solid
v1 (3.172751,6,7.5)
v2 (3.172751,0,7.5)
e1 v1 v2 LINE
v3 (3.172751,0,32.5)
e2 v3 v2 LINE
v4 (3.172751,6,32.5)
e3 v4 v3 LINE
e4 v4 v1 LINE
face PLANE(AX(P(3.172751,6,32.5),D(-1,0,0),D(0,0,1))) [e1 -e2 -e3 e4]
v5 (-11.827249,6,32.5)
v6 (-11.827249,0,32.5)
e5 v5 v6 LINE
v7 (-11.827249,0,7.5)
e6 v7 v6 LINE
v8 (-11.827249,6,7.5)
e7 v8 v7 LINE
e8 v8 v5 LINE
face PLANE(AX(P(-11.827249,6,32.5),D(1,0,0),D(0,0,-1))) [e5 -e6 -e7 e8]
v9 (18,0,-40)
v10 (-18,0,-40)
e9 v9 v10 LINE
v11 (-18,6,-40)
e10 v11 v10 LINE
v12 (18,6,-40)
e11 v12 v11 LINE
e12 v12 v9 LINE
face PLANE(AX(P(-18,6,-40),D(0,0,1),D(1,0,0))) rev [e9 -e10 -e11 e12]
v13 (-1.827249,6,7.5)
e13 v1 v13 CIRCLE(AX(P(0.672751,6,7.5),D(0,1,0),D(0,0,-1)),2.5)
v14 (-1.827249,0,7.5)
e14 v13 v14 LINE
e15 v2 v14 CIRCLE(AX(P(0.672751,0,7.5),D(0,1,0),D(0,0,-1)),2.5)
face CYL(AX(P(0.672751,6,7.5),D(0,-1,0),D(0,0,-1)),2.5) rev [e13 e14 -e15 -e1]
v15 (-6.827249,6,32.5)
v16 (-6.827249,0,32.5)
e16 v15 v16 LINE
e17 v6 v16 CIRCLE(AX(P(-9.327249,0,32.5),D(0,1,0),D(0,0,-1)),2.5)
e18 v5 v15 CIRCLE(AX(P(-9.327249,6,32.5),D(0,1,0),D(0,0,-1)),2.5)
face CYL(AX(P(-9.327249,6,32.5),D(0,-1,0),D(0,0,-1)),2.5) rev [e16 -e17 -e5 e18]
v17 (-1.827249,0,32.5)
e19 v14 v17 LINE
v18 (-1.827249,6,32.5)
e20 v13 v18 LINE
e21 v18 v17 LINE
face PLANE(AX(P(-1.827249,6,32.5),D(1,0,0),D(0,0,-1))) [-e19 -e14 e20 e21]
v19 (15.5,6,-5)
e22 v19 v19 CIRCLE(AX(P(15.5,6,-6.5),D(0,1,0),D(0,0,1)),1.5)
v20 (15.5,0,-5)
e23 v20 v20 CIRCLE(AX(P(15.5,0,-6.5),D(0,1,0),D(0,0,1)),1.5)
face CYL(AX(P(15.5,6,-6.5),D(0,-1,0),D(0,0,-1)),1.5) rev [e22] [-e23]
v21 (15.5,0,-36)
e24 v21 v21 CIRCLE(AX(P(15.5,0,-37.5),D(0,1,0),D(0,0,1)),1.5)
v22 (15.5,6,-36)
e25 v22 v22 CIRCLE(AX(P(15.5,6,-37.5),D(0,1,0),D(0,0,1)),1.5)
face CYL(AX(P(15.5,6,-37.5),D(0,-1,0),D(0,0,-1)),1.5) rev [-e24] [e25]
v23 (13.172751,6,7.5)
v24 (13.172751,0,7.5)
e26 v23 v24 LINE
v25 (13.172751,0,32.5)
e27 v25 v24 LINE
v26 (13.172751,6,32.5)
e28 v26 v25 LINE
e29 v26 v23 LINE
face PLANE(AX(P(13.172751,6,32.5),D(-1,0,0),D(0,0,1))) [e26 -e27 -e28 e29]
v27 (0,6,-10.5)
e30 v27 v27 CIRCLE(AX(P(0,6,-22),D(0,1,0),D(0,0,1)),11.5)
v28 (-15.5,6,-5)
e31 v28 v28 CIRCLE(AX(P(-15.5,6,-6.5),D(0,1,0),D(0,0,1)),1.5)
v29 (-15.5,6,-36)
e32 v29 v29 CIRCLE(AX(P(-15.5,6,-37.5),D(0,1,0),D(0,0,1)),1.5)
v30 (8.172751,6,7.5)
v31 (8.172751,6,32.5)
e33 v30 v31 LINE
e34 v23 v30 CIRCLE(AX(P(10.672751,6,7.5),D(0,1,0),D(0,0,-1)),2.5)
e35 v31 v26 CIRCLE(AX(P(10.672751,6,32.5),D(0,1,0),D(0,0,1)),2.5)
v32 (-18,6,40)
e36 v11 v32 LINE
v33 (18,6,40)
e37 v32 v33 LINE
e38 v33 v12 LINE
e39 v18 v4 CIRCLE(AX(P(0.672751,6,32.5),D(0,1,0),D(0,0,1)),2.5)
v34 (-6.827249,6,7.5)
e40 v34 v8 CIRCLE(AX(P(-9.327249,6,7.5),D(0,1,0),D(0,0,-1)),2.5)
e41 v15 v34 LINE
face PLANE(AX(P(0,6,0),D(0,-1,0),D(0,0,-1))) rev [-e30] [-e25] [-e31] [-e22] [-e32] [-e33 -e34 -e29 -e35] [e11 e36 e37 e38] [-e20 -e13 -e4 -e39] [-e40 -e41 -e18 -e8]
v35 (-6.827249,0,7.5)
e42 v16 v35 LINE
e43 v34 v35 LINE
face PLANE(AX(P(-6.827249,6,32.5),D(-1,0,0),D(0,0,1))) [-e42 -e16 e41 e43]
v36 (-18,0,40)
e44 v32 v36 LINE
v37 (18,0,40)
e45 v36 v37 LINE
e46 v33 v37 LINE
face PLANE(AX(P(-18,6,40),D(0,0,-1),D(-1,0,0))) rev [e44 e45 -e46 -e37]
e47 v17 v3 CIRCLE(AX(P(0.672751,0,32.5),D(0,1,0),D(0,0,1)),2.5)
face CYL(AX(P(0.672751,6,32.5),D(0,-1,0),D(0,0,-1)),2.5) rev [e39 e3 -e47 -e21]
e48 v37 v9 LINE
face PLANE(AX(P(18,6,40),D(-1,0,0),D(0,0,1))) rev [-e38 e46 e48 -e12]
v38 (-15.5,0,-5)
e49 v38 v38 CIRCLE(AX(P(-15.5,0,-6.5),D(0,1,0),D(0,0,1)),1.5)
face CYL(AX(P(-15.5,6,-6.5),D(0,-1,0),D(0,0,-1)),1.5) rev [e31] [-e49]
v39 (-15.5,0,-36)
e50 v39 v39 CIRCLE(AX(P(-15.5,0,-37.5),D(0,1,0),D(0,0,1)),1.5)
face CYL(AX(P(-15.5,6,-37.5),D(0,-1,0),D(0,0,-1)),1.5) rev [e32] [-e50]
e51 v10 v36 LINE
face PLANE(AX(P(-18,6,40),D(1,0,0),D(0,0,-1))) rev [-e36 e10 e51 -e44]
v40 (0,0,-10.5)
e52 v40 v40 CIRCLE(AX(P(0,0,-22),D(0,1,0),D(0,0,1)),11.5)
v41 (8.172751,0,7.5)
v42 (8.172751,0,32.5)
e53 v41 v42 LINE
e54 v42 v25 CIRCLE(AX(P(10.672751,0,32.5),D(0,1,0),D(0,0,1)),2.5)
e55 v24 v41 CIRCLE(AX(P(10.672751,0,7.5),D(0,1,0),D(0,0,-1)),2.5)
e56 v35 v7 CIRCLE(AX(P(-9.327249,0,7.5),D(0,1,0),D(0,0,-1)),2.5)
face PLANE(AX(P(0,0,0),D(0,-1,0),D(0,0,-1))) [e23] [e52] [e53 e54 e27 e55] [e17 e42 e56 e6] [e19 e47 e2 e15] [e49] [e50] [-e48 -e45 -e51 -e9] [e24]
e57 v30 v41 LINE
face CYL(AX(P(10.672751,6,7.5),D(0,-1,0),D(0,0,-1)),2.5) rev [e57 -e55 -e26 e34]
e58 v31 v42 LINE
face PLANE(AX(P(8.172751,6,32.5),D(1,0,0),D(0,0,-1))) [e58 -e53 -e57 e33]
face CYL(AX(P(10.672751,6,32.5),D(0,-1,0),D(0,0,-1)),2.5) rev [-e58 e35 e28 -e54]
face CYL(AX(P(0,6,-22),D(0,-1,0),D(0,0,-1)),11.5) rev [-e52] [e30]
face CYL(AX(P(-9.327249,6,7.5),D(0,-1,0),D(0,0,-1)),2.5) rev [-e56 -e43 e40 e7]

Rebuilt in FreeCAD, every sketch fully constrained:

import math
import FreeCAD as App
import Part
import Sketcher
Q = App.Units.Quantity

doc = App.newDocument("Part")
body = doc.addObject("PartDesign::Body", "Body")

sketch1 = doc.addObject("Sketcher::SketchObject", "Sketch")
body.addObject(sketch1)
sketch1.AttachmentSupport = (doc.XZ_Plane, [""])
sketch1.MapMode = "FlatFace"
sketch1.addGeometry([
    Part.LineSegment(App.Vector(-18, -40, 0), App.Vector(-18, 40, 0)),
    Part.LineSegment(App.Vector(-18, 40, 0), App.Vector(18, 40, 0)),
    Part.LineSegment(App.Vector(18, 40, 0), App.Vector(18, -40, 0)),
    Part.LineSegment(App.Vector(18, -40, 0), App.Vector(-18, -40, 0)),
    Part.LineSegment(App.Vector(-6.827249, 7.5, 0), App.Vector(-6.827249, 32.5, 0)),
    Part.ArcOfCircle(Part.Circle(App.Vector(-9.327249, 32.5, 0), App.Vector(0, 0, 1), 2.5), math.radians(0), math.radians(180)),
    Part.LineSegment(App.Vector(-11.827249, 32.5, 0), App.Vector(-11.827249, 7.5, 0)),
    Part.ArcOfCircle(Part.Circle(App.Vector(-9.327249, 7.5, 0), App.Vector(0, 0, 1), 2.5), math.radians(180), math.radians(360)),
    Part.ArcOfCircle(Part.Circle(App.Vector(0.672751, 32.5, 0), App.Vector(0, 0, 1), 2.5), math.radians(0), math.radians(180)),
    Part.LineSegment(App.Vector(-1.827249, 32.5, 0), App.Vector(-1.827249, 7.5, 0)),
    Part.ArcOfCircle(Part.Circle(App.Vector(0.672751, 7.5, 0), App.Vector(0, 0, 1), 2.5), math.radians(180), math.radians(360)),
    Part.LineSegment(App.Vector(3.172751, 7.5, 0), App.Vector(3.172751, 32.5, 0)),
    Part.ArcOfCircle(Part.Circle(App.Vector(10.672751, 32.5, 0), App.Vector(0, 0, 1), 2.5), math.radians(0), math.radians(180)),
    Part.LineSegment(App.Vector(8.172751, 32.5, 0), App.Vector(8.172751, 7.5, 0)),
    Part.ArcOfCircle(Part.Circle(App.Vector(10.672751, 7.5, 0), App.Vector(0, 0, 1), 2.5), math.radians(180), math.radians(360)),
    Part.LineSegment(App.Vector(13.172751, 7.5, 0), App.Vector(13.172751, 32.5, 0)),
    Part.Circle(App.Vector(-15.5, -6.5, 0), App.Vector(0, 0, 1), 1.5),
    Part.Circle(App.Vector(-15.5, -37.5, 0), App.Vector(0, 0, 1), 1.5),
    Part.Circle(App.Vector(15.5, -6.5, 0), App.Vector(0, 0, 1), 1.5),
    Part.Circle(App.Vector(0, -22, 0), App.Vector(0, 0, 1), 11.5),
    Part.Circle(App.Vector(15.5, -37.5, 0), App.Vector(0, 0, 1), 1.5),
], False)
sketch1.addConstraint([
    Sketcher.Constraint("Coincident", 0, 2, 1, 1),
    Sketcher.Constraint("Coincident", 1, 2, 2, 1),
    Sketcher.Constraint("Coincident", 2, 2, 3, 1),
    Sketcher.Constraint("Coincident", 3, 2, 0, 1),
    Sketcher.Constraint("Tangent", 4, 2, 5, 1),
    Sketcher.Constraint("Tangent", 5, 2, 6, 1),
    Sketcher.Constraint("Tangent", 6, 2, 7, 1),
    Sketcher.Constraint("Tangent", 7, 2, 4, 1),
    Sketcher.Constraint("Tangent", 8, 2, 9, 1),
    Sketcher.Constraint("Tangent", 9, 2, 10, 1),
    Sketcher.Constraint("Tangent", 10, 2, 11, 1),
    Sketcher.Constraint("Tangent", 11, 2, 8, 1),
    Sketcher.Constraint("Tangent", 12, 2, 13, 1),
    Sketcher.Constraint("Tangent", 13, 2, 14, 1),
    Sketcher.Constraint("Tangent", 14, 2, 15, 1),
    Sketcher.Constraint("Tangent", 15, 2, 12, 1),
    Sketcher.Constraint("Vertical", 0),
    Sketcher.Constraint("Horizontal", 1),
    Sketcher.Constraint("Vertical", 2),
    Sketcher.Constraint("Horizontal", 3),
    Sketcher.Constraint("Vertical", 4),
    Sketcher.Constraint("Vertical", 6),
    Sketcher.Constraint("Vertical", 9),
    Sketcher.Constraint("Vertical", 11),
    Sketcher.Constraint("Vertical", 13),
    Sketcher.Constraint("Vertical", 15),
    Sketcher.Constraint("Equal", 7, 8),
    Sketcher.Constraint("Equal", 10, 12),
    Sketcher.Constraint("Equal", 16, 17),
    Sketcher.Constraint("Equal", 17, 18),
    Sketcher.Constraint("Equal", 18, 20),
    Sketcher.Constraint("Symmetric", 0, 2, 2, 2, -1, 1),
    Sketcher.Constraint("Symmetric", 16, 3, 18, 3, -2),
    Sketcher.Constraint("Symmetric", 17, 3, 20, 3, -2),
    Sketcher.Constraint("PointOnObject", 19, 3, -2),
    Sketcher.Constraint("Horizontal", 5, 3, 8, 3),
    Sketcher.Constraint("Horizontal", 7, 3, 10, 3),
    Sketcher.Constraint("Horizontal", 8, 3, 12, 3),
    Sketcher.Constraint("Horizontal", 10, 3, 14, 3),
    Sketcher.Constraint("Vertical", 16, 3, 17, 3),
    Sketcher.Constraint("Diameter", 16, Q("3 mm")),
    Sketcher.Constraint("Diameter", 19, Q("23 mm")),
    Sketcher.Constraint("Radius", 5, Q("2.5 mm")),
    Sketcher.Constraint("DistanceX", 1, 1, 1, 2, Q("36 mm")),
    Sketcher.Constraint("DistanceY", 0, 1, 0, 2, Q("80 mm")),
    Sketcher.Constraint("DistanceY", 4, 1, 4, 2, Q("25 mm")),
    Sketcher.Constraint("DistanceY", 19, 3, -1, 1, Q("22 mm")),
    Sketcher.Constraint("DistanceX", 5, 3, 8, 3, Q("10 mm")),
    Sketcher.Constraint("DistanceX", 8, 3, 12, 3, Q("10 mm")),
    Sketcher.Constraint("DistanceY", 16, 3, 7, 3, Q("14 mm")),
    Sketcher.Constraint("DistanceY", 17, 3, 16, 3, Q("31 mm")),
    Sketcher.Constraint("DistanceX", 16, 3, 18, 3, Q("31 mm")),
    Sketcher.Constraint("DistanceY", -1, 1, 5, 3, Q("32.5 mm")),
    Sketcher.Constraint("DistanceX", 5, 3, -1, 1, Q("9.327249 mm")),
])
pad1 = doc.addObject("PartDesign::Pad", "Pad")
body.addObject(pad1)
pad1.Profile = sketch1
pad1.Length = 6
pad1.Reversed = True

doc.recompute()
